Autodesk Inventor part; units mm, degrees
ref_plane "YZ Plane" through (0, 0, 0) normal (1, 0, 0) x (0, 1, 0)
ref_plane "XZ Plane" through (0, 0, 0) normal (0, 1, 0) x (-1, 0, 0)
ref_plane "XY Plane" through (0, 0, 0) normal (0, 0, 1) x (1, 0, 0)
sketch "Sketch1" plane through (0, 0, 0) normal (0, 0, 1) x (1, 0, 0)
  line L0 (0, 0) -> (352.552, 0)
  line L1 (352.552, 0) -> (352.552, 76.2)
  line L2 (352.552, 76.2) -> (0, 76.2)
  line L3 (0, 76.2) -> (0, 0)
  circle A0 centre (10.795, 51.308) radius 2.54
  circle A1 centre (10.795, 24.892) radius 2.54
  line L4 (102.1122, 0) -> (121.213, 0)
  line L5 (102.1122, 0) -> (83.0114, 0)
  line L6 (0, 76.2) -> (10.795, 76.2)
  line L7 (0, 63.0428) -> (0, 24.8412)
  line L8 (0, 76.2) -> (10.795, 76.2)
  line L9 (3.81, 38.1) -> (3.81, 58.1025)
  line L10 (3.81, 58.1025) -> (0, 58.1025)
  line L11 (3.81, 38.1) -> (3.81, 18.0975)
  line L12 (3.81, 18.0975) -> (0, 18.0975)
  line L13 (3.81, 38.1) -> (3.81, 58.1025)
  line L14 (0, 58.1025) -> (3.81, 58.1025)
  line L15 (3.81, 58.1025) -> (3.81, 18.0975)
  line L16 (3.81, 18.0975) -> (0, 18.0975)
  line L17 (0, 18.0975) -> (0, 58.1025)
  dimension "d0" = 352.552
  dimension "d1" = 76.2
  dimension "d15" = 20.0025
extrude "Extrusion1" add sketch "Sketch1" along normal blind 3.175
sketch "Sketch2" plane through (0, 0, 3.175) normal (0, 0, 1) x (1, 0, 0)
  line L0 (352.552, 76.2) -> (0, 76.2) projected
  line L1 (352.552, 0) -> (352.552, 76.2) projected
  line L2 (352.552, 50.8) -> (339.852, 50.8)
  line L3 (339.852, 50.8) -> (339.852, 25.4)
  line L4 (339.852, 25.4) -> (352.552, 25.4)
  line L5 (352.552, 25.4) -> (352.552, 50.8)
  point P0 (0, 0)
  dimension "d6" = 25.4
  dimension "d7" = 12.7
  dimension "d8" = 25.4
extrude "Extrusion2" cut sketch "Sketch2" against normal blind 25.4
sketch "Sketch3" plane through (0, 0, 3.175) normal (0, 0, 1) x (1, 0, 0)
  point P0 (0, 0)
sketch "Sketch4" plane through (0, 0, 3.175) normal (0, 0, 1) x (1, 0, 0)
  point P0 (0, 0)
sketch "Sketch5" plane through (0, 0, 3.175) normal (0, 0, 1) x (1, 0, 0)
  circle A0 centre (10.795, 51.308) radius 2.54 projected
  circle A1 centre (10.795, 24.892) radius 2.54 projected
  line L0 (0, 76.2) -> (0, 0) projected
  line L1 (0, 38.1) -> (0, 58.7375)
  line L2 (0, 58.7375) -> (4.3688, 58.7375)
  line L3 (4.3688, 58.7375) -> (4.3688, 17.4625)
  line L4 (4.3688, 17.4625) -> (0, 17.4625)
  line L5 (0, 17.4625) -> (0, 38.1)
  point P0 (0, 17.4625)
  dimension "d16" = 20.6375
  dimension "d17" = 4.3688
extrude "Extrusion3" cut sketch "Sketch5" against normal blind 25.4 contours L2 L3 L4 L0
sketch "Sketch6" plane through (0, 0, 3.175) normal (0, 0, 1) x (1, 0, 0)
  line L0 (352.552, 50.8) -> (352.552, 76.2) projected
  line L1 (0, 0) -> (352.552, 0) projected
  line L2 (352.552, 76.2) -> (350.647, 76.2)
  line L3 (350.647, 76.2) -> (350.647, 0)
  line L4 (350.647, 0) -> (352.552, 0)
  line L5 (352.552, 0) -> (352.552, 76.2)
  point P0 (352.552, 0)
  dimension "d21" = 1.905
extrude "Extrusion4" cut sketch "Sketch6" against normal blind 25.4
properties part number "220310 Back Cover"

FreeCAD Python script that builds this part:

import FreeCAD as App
import Part
import Sketcher

V = App.Vector
Q = App.Units.Quantity


def add_polygon(sketch, points):
    """Adds a closed chain of lines whose ends are joined by coincident constraints."""
    first, n = sketch.GeometryCount, len(points)
    for a, b in zip(points, points[1:] + points[:1]):
        sketch.addGeometry(Part.LineSegment(App.Vector(*a, 0), App.Vector(*b, 0)), False)
    for i in range(n):
        sketch.addConstraint(Sketcher.Constraint("Coincident", first + i, 2, first + (i + 1) % n, 1))

doc = App.newDocument("Part")
params = doc.addObject("Spreadsheet::Sheet", "Params")
for row, (alias, value) in enumerate([
    ("sketch1_height", "3 in"),
    ("sketch1_diameter", "0.2 in"),
    ("sketch1_width", "13.88 in"),
    ("pad1_length", "0.125 in"),
    ("sketch2_height", "1 in"),
    ("sketch2_width", "0.5 in"),
    ("pocket1_length", "1 in"),
    ("sketch3_width", "0.172 in"),
    ("sketch3_height", "1.625 in"),
    ("pocket2_length", "1 in"),
    ("sketch4_width", "0.075 in"),
    ("sketch4_height", "3 in"),
    ("pocket3_length", "1 in"),
], start=1):
    params.set(f"A{row}", alias)
    params.set(f"B{row}", "=" + value)
    params.setAlias(f"B{row}", alias)

body = doc.addObject("PartDesign::Body", "Body")

# Sketch on XY plane
sketch1 = body.newObject("Sketcher::SketchObject", "Sketch")
sketch1.AttachmentSupport = (doc.getObject("XY_Plane"), [""])
sketch1.MapMode = "FlatFace"
add_polygon(sketch1, [(0, 0), (352.6, 0), (352.6, 76.2), (0, 76.2)])  # lines 0-3
sketch1.addGeometry(Part.Circle(V(10.8, 24.9, 0), V(0, 0, 1), 2.5), False)  # 4
sketch1.addGeometry(Part.Circle(V(10.8, 51.3, 0), V(0, 0, 1), 2.5), False)  # 5
sketch1.addConstraint([
    Sketcher.Constraint("Horizontal", 0),
    Sketcher.Constraint("Vertical", 1),
    Sketcher.Constraint("Horizontal", 2),
    Sketcher.Constraint("Vertical", 3),
    Sketcher.Constraint("Coincident", 3, 2, -1, 1),
    Sketcher.Constraint("Equal", 4, 5),
    Sketcher.Constraint("Vertical", 4, 3, 5, 3),
    Sketcher.Constraint("DistanceY", 1, 1, 1, 2, Q("3 in")),
    Sketcher.Constraint("Diameter", 4, Q("0.2 in")),
    Sketcher.Constraint("DistanceX", 0, 1, 0, 2, Q("13.88 in")),
    Sketcher.Constraint("DistanceY", -1, 1, 4, 3, Q("0.98 in")),
    Sketcher.Constraint("DistanceY", -1, 1, 5, 3, Q("2.02 in")),
    Sketcher.Constraint("DistanceX", -1, 1, 4, 3, Q("0.425 in")),
])
sketch1.setExpression("Constraints[11]", "Params.sketch1_height")
sketch1.setExpression("Constraints[12]", "Params.sketch1_diameter")
sketch1.setExpression("Constraints[13]", "Params.sketch1_width")
pad1 = body.newObject("PartDesign::Pad", "Pad")
pad1.Profile = sketch1
pad1.setExpression("Length", "Params.pad1_length")

# Sketch on XY plane
sketch2 = body.newObject("Sketcher::SketchObject", "Sketch001")
sketch2.AttachmentSupport = (doc.getObject("XY_Plane"), [""])
sketch2.MapMode = "FlatFace"
sketch2.AttachmentOffset = App.Placement(V(0, 0, 0.125 * 25.4), App.Rotation())
add_polygon(sketch2, [(340, 25), (353, 25), (353, 51), (340, 51)])  # lines 0-3
sketch2.addConstraint([
    Sketcher.Constraint("Horizontal", 0),
    Sketcher.Constraint("Vertical", 1),
    Sketcher.Constraint("Horizontal", 2),
    Sketcher.Constraint("Vertical", 3),
    Sketcher.Constraint("DistanceY", 1, 1, 1, 2, Q("1 in")),
    Sketcher.Constraint("DistanceX", 0, 1, 0, 2, Q("0.5 in")),
    Sketcher.Constraint("DistanceY", -1, 1, 0, 2, Q("1 in")),
    Sketcher.Constraint("DistanceX", -1, 1, 0, 2, Q("13.88 in")),
])
sketch2.setExpression("Constraints[8]", "Params.sketch2_height")
sketch2.setExpression("Constraints[9]", "Params.sketch2_width")
pocket1 = body.newObject("PartDesign::Pocket", "Pocket")
pocket1.Profile = sketch2
pocket1.setExpression("Length", "Params.pocket1_length")

# Sketch on XY plane
sketch3 = body.newObject("Sketcher::SketchObject", "Sketch002")
sketch3.AttachmentSupport = (doc.getObject("XY_Plane"), [""])
sketch3.MapMode = "FlatFace"
sketch3.AttachmentOffset = App.Placement(V(0, 0, 0.125 * 25.4), App.Rotation())
add_polygon(sketch3, [(4.4, 58.7), (0, 58.7), (0, 17.5), (4.4, 17.5)])  # lines 0-3
sketch3.addConstraint([
    Sketcher.Constraint("Horizontal", 0),
    Sketcher.Constraint("Vertical", 1),
    Sketcher.Constraint("Horizontal", 2),
    Sketcher.Constraint("Vertical", 3),
    Sketcher.Constraint("PointOnObject", 0, 2, -2),
    Sketcher.Constraint("DistanceX", 0, 2, 0, 1, Q("0.172 in")),
    Sketcher.Constraint("DistanceY", 1, 2, 1, 1, Q("1.625 in")),
    Sketcher.Constraint("DistanceY", -1, 1, 0, 2, Q("2.3125 in")),
])
sketch3.setExpression("Constraints[9]", "Params.sketch3_width")
sketch3.setExpression("Constraints[10]", "Params.sketch3_height")
pocket2 = body.newObject("PartDesign::Pocket", "Pocket001")
pocket2.Profile = sketch3
pocket2.setExpression("Length", "Params.pocket2_length")

# Sketch on XY plane
sketch4 = body.newObject("Sketcher::SketchObject", "Sketch003")
sketch4.AttachmentSupport = (doc.getObject("XY_Plane"), [""])
sketch4.MapMode = "FlatFace"
sketch4.AttachmentOffset = App.Placement(V(0, 0, 0.125 * 25.4), App.Rotation())
add_polygon(sketch4, [(352.6, 0), (352.6, 76.2), (350.6, 76.2), (350.6, 0)])  # lines 0-3
sketch4.addConstraint([
    Sketcher.Constraint("Vertical", 0),
    Sketcher.Constraint("Horizontal", 1),
    Sketcher.Constraint("Vertical", 2),
    Sketcher.Constraint("Horizontal", 3),
    Sketcher.Constraint("PointOnObject", 2, 2, -1),
    Sketcher.Constraint("DistanceX", 1, 2, 1, 1, Q("0.075 in")),
    Sketcher.Constraint("DistanceY", 0, 1, 0, 2, Q("3 in")),
    Sketcher.Constraint("DistanceX", -1, 1, 0, 2, Q("13.88 in")),
])
sketch4.setExpression("Constraints[9]", "Params.sketch4_width")
sketch4.setExpression("Constraints[10]", "Params.sketch4_height")
pocket3 = body.newObject("PartDesign::Pocket", "Pocket002")
pocket3.Profile = sketch4
pocket3.setExpression("Length", "Params.pocket3_length")

doc.recompute()
